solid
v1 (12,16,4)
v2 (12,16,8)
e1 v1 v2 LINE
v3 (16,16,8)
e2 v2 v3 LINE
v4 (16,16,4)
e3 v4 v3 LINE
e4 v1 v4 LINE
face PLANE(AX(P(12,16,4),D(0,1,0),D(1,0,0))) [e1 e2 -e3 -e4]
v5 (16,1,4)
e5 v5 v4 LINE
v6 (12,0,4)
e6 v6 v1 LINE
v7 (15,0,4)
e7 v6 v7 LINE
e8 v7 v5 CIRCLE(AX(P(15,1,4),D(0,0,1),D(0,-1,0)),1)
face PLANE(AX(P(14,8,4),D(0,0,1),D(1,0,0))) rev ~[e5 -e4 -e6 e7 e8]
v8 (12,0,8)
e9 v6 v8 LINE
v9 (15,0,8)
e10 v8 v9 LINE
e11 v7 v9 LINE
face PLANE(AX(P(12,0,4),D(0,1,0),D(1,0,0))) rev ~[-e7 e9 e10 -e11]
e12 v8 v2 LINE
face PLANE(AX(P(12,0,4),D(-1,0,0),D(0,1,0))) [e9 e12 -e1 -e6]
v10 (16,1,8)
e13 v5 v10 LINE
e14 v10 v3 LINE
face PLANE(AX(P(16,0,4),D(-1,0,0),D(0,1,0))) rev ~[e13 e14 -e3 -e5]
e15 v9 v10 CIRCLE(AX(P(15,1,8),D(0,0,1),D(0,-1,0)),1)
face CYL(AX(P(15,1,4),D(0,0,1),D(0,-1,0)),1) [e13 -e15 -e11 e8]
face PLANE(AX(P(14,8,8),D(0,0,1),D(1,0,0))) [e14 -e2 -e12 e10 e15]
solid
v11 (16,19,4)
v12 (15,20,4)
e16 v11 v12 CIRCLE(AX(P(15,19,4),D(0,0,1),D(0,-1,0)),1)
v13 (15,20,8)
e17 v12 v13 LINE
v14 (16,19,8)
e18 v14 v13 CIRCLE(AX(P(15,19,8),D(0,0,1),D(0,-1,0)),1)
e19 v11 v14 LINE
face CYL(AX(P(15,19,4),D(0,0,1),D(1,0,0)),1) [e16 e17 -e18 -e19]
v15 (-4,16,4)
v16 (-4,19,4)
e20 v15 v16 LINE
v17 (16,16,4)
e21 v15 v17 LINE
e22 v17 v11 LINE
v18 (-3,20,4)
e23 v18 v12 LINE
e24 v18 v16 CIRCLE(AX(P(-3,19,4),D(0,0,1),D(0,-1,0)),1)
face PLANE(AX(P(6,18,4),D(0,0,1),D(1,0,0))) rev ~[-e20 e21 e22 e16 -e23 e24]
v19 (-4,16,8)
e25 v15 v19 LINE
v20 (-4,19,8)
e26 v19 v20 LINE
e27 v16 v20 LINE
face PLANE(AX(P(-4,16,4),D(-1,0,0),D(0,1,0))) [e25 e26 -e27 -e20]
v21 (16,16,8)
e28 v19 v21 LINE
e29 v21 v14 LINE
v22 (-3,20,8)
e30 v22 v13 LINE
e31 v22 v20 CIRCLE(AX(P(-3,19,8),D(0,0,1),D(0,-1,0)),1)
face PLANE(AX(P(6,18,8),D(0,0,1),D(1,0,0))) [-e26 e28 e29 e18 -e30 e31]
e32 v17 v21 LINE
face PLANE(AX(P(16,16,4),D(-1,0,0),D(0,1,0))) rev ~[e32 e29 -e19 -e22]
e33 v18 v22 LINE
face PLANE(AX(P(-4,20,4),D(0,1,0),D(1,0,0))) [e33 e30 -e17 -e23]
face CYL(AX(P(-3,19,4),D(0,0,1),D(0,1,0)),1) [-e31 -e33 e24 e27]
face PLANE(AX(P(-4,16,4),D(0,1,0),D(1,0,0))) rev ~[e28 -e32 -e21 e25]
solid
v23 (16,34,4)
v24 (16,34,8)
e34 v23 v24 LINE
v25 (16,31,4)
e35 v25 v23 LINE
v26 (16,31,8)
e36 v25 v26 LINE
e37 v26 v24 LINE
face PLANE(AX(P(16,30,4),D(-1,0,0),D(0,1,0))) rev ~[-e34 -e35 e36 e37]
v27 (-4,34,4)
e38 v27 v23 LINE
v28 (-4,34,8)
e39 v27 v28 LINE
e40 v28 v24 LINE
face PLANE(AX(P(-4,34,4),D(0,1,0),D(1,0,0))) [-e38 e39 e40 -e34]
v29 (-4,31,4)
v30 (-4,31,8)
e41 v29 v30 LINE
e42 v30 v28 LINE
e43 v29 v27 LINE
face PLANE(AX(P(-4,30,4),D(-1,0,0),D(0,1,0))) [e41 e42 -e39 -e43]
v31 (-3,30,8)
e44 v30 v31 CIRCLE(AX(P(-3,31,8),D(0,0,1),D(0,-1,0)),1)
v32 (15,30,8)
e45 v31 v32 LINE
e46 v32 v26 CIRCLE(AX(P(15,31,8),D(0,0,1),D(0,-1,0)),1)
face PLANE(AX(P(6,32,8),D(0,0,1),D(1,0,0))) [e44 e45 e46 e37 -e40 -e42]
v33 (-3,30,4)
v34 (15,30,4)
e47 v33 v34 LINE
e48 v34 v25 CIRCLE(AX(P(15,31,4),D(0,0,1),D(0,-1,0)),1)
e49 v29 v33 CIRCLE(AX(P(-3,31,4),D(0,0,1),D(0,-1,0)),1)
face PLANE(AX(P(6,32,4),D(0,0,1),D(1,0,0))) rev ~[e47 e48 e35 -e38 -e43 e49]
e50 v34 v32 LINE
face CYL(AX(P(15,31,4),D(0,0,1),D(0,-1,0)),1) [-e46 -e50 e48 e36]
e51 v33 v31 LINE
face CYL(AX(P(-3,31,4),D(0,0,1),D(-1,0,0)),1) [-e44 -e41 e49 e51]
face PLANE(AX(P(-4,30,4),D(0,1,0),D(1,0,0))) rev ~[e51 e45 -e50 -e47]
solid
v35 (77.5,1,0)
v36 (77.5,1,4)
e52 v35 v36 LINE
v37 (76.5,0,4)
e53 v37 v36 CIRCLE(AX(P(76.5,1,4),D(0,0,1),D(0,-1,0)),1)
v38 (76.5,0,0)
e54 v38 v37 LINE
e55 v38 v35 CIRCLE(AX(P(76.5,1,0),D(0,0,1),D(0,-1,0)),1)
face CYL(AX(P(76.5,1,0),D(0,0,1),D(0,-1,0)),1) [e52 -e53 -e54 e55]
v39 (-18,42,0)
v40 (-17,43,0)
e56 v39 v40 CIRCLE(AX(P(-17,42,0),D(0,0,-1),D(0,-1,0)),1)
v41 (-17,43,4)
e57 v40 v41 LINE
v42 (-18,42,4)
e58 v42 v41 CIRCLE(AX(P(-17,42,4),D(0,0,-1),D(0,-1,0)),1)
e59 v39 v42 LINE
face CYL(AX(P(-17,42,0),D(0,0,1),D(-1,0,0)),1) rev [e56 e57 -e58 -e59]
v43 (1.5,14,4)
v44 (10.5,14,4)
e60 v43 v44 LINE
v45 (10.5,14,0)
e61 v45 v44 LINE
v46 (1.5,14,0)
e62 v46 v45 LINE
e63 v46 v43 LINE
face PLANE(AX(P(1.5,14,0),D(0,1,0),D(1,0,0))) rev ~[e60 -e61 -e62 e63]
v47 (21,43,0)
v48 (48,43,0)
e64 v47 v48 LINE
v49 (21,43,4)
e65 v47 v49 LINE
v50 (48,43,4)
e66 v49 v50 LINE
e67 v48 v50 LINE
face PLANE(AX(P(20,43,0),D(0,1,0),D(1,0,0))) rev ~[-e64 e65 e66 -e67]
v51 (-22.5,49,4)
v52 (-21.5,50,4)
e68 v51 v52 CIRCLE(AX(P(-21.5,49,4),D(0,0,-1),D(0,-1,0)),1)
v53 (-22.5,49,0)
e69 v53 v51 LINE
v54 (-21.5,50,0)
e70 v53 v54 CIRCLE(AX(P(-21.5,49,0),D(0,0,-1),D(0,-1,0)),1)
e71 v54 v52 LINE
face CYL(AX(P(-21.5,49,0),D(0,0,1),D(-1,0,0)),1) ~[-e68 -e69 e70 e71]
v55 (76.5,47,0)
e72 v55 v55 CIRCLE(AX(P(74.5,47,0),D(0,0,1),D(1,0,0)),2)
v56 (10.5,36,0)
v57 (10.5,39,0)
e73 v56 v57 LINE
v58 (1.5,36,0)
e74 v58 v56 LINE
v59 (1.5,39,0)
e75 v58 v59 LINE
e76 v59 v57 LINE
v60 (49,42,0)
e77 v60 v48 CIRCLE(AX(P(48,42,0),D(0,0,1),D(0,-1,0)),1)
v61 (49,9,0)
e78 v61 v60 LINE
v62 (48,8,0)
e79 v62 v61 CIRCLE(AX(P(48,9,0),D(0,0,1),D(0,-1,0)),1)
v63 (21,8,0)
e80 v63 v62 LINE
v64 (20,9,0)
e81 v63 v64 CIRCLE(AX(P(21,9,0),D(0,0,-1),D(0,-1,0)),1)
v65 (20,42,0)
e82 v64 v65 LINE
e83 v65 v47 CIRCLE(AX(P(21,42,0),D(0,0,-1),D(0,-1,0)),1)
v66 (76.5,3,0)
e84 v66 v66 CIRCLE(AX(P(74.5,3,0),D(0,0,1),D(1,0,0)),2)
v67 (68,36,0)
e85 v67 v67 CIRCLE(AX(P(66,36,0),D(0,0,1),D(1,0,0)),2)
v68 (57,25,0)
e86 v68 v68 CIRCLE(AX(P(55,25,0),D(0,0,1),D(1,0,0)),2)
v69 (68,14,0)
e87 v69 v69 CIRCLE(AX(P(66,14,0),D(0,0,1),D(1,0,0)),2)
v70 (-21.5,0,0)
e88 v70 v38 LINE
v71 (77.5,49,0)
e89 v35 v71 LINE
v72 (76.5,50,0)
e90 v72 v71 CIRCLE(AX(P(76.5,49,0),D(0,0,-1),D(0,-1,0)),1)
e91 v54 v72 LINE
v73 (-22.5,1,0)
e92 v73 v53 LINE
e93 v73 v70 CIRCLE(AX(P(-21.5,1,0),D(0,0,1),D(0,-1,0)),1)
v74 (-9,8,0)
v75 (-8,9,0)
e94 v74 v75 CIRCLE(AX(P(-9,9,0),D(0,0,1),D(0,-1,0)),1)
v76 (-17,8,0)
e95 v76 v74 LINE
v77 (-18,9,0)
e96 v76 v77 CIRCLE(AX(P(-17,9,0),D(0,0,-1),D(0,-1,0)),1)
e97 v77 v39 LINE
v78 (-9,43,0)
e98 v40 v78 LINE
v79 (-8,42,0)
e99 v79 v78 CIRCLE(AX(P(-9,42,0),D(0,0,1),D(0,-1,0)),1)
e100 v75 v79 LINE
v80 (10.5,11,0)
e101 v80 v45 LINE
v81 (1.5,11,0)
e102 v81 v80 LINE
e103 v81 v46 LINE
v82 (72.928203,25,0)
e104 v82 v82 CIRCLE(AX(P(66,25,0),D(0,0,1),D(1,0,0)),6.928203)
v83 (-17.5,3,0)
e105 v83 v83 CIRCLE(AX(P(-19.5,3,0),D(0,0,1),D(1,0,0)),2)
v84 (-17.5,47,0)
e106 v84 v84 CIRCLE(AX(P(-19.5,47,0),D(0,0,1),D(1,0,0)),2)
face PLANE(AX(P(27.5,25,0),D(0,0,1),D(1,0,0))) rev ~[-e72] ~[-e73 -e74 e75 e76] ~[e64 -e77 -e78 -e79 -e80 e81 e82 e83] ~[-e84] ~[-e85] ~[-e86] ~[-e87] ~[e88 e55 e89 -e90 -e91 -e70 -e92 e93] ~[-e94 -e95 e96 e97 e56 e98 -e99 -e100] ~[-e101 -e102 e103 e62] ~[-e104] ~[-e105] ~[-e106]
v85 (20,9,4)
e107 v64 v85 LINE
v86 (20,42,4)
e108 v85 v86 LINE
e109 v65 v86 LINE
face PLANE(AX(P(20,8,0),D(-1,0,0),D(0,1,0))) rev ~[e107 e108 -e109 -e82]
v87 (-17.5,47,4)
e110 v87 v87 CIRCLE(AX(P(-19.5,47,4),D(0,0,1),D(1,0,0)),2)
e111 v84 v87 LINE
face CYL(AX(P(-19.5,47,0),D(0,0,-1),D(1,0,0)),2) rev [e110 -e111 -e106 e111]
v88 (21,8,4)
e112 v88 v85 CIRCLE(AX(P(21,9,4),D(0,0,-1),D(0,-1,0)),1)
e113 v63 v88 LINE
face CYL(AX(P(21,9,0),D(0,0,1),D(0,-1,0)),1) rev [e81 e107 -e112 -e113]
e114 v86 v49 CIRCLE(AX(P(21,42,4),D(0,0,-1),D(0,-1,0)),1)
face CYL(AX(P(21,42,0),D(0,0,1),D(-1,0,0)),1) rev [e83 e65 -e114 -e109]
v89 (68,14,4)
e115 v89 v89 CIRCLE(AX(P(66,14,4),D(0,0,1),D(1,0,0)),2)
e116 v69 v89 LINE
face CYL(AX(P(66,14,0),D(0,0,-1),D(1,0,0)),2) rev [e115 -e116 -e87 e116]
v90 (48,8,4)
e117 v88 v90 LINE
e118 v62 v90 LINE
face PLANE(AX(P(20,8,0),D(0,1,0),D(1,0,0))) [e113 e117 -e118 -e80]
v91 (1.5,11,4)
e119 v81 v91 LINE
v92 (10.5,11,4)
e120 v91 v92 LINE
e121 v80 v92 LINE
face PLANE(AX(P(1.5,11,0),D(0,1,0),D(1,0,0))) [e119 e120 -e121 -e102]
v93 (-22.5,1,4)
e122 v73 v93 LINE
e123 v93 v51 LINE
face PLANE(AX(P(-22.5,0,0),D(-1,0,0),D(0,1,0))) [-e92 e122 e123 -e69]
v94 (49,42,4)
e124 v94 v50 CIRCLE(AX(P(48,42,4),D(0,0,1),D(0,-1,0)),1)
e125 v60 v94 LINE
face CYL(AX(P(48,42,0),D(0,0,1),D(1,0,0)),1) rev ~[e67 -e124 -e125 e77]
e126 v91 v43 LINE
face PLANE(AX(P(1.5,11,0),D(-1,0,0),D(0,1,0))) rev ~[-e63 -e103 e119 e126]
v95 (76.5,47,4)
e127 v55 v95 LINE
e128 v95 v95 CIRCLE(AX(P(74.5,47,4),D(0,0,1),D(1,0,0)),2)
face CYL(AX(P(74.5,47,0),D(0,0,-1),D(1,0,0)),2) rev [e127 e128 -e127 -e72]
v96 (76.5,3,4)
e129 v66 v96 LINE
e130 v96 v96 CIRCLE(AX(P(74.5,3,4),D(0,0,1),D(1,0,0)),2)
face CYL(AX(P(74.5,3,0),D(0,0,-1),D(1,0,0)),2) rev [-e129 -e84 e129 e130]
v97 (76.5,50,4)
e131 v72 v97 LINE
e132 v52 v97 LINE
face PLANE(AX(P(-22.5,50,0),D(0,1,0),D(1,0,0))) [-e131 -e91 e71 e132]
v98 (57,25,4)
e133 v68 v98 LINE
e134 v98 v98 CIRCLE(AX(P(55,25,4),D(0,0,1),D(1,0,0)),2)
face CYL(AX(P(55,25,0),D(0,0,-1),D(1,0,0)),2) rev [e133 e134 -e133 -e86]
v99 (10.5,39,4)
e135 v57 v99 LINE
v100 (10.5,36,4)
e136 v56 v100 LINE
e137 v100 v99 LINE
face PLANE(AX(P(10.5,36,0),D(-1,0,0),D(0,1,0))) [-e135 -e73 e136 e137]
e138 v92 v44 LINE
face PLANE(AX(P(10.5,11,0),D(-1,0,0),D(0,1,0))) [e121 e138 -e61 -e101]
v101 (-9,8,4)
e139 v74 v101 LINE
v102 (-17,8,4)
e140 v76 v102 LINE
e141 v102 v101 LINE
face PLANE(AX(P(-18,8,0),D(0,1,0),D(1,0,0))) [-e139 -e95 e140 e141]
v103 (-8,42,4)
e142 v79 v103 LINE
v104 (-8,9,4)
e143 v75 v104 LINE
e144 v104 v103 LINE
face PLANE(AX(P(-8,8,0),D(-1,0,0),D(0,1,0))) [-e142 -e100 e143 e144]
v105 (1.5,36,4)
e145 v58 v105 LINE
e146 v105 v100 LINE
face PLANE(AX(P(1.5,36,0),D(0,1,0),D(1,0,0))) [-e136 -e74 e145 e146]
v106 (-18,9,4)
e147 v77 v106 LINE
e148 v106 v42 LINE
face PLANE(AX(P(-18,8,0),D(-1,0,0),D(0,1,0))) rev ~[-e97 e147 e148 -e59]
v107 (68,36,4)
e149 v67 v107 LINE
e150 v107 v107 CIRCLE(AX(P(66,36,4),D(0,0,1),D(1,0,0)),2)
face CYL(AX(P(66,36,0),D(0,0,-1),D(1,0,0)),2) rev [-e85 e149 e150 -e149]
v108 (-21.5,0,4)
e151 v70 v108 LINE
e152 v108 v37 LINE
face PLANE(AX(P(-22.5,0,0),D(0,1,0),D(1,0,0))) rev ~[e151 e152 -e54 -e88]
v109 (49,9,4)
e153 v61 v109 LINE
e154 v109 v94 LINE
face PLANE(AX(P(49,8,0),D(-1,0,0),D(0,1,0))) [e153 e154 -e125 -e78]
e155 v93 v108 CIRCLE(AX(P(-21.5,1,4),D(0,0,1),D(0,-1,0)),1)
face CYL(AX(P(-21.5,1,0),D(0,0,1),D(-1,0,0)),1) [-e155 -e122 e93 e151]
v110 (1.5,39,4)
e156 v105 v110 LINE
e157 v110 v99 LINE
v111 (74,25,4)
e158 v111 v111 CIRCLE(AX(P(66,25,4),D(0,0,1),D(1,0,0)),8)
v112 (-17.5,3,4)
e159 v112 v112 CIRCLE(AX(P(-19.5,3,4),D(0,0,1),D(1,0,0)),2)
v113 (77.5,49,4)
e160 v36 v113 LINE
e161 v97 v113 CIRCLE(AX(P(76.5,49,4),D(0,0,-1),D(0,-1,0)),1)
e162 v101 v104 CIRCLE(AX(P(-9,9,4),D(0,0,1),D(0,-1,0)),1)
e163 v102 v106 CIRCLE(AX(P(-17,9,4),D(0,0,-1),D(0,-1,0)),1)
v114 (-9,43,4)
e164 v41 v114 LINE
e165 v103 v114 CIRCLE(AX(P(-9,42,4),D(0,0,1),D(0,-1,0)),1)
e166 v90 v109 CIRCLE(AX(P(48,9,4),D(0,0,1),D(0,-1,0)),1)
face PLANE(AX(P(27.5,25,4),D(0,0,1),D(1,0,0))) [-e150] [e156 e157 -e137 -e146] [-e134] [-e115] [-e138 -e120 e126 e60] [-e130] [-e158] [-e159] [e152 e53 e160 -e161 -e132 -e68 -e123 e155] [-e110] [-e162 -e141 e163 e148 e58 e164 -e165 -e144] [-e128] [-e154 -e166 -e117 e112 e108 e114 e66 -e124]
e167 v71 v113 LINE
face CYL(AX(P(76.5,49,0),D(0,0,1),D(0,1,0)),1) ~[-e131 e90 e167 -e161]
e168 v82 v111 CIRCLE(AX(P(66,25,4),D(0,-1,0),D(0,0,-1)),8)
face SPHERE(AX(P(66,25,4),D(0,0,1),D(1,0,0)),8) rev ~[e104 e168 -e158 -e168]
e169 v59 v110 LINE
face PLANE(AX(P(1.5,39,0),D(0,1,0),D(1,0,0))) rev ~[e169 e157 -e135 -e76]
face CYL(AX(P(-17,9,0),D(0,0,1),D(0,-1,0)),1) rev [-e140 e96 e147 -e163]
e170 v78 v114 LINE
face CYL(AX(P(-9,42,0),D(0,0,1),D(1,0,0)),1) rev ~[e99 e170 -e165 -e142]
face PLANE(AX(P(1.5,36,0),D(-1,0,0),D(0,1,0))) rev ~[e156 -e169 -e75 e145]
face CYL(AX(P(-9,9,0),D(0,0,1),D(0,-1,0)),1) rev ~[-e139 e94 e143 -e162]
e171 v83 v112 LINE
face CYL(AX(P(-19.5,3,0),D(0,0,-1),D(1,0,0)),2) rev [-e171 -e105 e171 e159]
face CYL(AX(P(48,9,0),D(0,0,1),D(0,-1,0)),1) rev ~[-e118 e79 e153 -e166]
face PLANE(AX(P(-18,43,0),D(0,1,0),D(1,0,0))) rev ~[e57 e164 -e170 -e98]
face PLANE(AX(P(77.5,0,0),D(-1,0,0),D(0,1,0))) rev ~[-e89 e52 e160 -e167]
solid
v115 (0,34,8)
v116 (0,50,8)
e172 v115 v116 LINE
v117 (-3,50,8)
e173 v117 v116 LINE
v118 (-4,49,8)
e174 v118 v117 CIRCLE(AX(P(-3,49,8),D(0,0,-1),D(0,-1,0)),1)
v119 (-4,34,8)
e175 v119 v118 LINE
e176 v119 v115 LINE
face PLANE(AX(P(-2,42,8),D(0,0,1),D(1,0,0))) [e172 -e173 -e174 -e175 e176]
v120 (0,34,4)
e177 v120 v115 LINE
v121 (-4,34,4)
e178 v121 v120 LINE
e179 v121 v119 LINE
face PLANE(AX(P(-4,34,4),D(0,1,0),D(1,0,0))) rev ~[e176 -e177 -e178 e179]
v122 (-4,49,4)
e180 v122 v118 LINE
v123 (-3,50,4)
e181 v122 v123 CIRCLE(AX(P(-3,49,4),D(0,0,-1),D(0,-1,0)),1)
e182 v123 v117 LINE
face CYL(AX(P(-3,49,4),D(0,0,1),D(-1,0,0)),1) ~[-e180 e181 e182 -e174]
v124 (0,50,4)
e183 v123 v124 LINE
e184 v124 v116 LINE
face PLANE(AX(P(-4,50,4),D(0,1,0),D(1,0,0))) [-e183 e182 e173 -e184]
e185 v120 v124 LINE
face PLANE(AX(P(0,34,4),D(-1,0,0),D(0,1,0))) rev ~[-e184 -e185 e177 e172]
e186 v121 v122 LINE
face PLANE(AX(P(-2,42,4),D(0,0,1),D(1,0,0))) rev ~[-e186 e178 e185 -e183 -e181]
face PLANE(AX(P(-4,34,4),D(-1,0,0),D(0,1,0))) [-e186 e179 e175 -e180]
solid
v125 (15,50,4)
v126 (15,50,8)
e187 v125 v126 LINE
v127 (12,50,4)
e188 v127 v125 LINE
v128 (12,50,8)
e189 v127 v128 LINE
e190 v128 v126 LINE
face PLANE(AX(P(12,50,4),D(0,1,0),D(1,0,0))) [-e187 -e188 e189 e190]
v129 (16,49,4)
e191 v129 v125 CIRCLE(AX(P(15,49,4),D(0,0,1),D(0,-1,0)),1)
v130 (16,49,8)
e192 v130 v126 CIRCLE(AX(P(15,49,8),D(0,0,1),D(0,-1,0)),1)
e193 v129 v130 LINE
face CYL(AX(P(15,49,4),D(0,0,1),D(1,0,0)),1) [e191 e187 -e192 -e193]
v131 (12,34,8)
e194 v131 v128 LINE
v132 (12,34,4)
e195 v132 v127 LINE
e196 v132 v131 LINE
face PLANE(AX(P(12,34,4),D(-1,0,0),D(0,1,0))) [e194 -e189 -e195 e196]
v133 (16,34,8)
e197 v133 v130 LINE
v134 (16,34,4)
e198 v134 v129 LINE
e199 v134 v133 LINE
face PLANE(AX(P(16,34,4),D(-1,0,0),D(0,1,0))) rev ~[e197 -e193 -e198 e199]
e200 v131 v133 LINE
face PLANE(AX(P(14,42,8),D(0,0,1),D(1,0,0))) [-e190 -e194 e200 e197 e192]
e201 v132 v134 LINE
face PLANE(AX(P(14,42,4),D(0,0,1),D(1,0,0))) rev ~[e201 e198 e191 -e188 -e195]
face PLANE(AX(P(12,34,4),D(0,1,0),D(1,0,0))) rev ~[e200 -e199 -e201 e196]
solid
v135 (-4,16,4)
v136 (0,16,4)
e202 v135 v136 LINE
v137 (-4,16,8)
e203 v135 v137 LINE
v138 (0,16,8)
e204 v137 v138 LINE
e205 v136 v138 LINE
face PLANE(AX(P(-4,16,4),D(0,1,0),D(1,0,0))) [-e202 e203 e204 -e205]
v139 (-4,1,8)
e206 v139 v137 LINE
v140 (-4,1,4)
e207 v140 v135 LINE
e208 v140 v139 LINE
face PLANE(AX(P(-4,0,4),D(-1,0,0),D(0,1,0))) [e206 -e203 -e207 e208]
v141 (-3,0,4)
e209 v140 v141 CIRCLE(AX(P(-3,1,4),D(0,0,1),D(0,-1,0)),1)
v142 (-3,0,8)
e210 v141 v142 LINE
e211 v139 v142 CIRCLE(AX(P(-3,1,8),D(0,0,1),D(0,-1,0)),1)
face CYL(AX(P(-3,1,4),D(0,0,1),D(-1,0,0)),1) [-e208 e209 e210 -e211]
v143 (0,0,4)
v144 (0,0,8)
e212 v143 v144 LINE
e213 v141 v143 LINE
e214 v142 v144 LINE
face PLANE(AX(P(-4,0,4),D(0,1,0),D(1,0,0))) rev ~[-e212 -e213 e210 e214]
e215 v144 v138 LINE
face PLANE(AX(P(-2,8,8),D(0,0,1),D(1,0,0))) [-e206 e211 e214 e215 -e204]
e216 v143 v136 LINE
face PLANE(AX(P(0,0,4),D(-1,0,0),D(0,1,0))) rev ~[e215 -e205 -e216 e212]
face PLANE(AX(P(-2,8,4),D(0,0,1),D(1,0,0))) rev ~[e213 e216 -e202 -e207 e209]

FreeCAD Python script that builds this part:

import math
import FreeCAD as App
import Part
import Sketcher

V = App.Vector
Q = App.Units.Quantity


def edges_at(feature, points):
    """Names of the edges that pass closest to the given points."""
    edges = feature.Shape.Edges
    near = lambda p: min(range(len(edges)), key=lambda i: edges[i].distToShape(Part.Vertex(*p))[0])
    return sorted({f"Edge{near(p) + 1}" for p in points})


def add_polygon(sketch, points):
    """Adds a closed chain of lines whose ends are joined by coincident constraints."""
    first, n = sketch.GeometryCount, len(points)
    for a, b in zip(points, points[1:] + points[:1]):
        sketch.addGeometry(Part.LineSegment(App.Vector(*a, 0), App.Vector(*b, 0)), False)
    for i in range(n):
        sketch.addConstraint(Sketcher.Constraint("Coincident", first + i, 2, first + (i + 1) % n, 1))

doc = App.newDocument("Part")
params = doc.addObject("Spreadsheet::Sheet", "Params")
for row, (alias, value) in enumerate([
    ("sketch1_radius", "8 mm"),
    ("revolution_angle", "360 deg"),
    ("sketch2_diameter", "4 mm"),
    ("pad1_length", "4 mm"),
    ("sketch3_width", "29 mm"),
    ("sketch3_height", "35 mm"),
    ("pad2_length", "4 mm"),
    ("sketch4_diameter", "4 mm"),
    ("pad3_length", "4 mm"),
    ("sketch5_diameter", "4 mm"),
    ("pad4_length", "4 mm"),
    ("sketch6_width", "10 mm"),
    ("sketch6_height", "35 mm"),
    ("pad5_length", "4 mm"),
    ("sketch7_width", "9 mm"),
    ("sketch7_height", "3 mm"),
    ("pad6_length", "4 mm"),
    ("sketch8_width", "9 mm"),
    ("sketch8_height", "3 mm"),
    ("pad7_length", "4 mm"),
    ("sketch9_diameter", "4 mm"),
    ("pad8_length", "4 mm"),
    ("sketch10_diameter", "4 mm"),
    ("pad9_length", "4 mm"),
    ("sketch11_diameter", "4 mm"),
    ("pad10_length", "4 mm"),
    ("sketch12_diameter", "4 mm"),
    ("pad11_length", "4 mm"),
    ("sketch13_width", "100 mm"),
    ("sketch13_height", "50 mm"),
    ("pad12_length", "4 mm"),
    ("fillet_radius", "1 mm"),
    ("fillet2_radius", "1 mm"),
    ("sketch14_width", "4 mm"),
    ("sketch14_height", "16 mm"),
    ("pad13_length", "4 mm"),
    ("fillet3_radius", "1 mm"),
    ("sketch15_width", "4 mm"),
    ("sketch15_height", "16 mm"),
    ("pad14_length", "4 mm"),
    ("fillet4_radius", "1 mm"),
    ("sketch16_width", "20 mm"),
    ("sketch16_height", "4 mm"),
    ("pad15_length", "4 mm"),
    ("fillet5_radius", "1 mm"),
    ("sketch17_width", "4 mm"),
    ("sketch17_height", "16 mm"),
    ("pad16_length", "4 mm"),
    ("fillet6_radius", "1 mm"),
    ("sketch18_width", "20 mm"),
    ("sketch18_height", "4 mm"),
    ("pad17_length", "4 mm"),
    ("fillet7_radius", "1 mm"),
    ("fillet8_radius", "1 mm"),
    ("sketch19_width", "4 mm"),
    ("sketch19_height", "16 mm"),
    ("pad18_length", "4 mm"),
    ("fillet9_radius", "1 mm"),
], start=1):
    params.set(f"A{row}", alias)
    params.set(f"B{row}", "=" + value)
    params.setAlias(f"B{row}", alias)

body = doc.addObject("PartDesign::Body", "Body")

# Sketch on XZ plane
sketch1 = body.newObject("Sketcher::SketchObject", "Sketch")
sketch1.AttachmentSupport = (doc.getObject("XZ_Plane"), [""])
sketch1.MapMode = "FlatFace"
sketch1.AttachmentOffset = App.Placement(V(0, 0, -25), App.Rotation())
sketch1.addGeometry([
    Part.ArcOfCircle(Part.Circle(V(66, 4, 0), V(0, 0, 1), 8), math.radians(-90), math.radians(90)),
    Part.LineSegment(V(66, 12, 0), V(66, -4, 0)),
], False)
sketch1.addGeometry(Part.LineSegment(V(66, -4, 0), V(66, 12, 0)), True)  # axis
sketch1.addConstraint([
    Sketcher.Constraint("Coincident", 0, 1, 1, 2),
    Sketcher.Constraint("Coincident", 1, 1, 0, 2),
    Sketcher.Constraint("Vertical", 1),
    Sketcher.Constraint("Vertical", 2),
    Sketcher.Constraint("Coincident", 2, 1, 0, 1),
    Sketcher.Constraint("Equal", 1, 2),
    Sketcher.Constraint("Radius", 0, Q("8 mm")),
    Sketcher.Constraint("DistanceX", -1, 1, 0, 3, Q("66 mm")),
    Sketcher.Constraint("DistanceY", -1, 1, 0, 3, Q("4 mm")),
    Sketcher.Constraint("DistanceX", -1, 1, 0, 1, Q("66 mm")),
])
sketch1.setExpression("Constraints[6]", "Params.sketch1_radius")
revolution = body.newObject("PartDesign::Revolution", "Revolution")
revolution.Profile = sketch1
revolution.ReferenceAxis = (sketch1, ["Axis0"])
revolution.setExpression("Angle", "Params.revolution_angle")
body2 = doc.addObject("PartDesign::Body", "Body001")

# Sketch on XY plane
sketch2 = body2.newObject("Sketcher::SketchObject", "Sketch001")
sketch2.AttachmentSupport = (doc.getObject("XY_Plane001"), [""])
sketch2.MapMode = "FlatFace"
sketch2.addGeometry(Part.Circle(V(66, 36, 0), V(0, 0, 1), 2), False)
sketch2.addConstraint([
    Sketcher.Constraint("Diameter", 0, Q("4 mm")),
    Sketcher.Constraint("DistanceX", -1, 1, 0, 3, Q("66 mm")),
    Sketcher.Constraint("DistanceY", -1, 1, 0, 3, Q("36 mm")),
])
sketch2.setExpression("Constraints[0]", "Params.sketch2_diameter")
pad1 = body2.newObject("PartDesign::Pad", "Pad")
pad1.Profile = sketch2
pad1.setExpression("Length", "Params.pad1_length")
body3 = doc.addObject("PartDesign::Body", "Body002")

# Sketch on XY plane
sketch3 = body3.newObject("Sketcher::SketchObject", "Sketch002")
sketch3.AttachmentSupport = (doc.getObject("XY_Plane002"), [""])
sketch3.MapMode = "FlatFace"
add_polygon(sketch3, [(20, 43), (20, 8), (49, 8), (49, 43)])  # lines 0-3
sketch3.addConstraint([
    Sketcher.Constraint("Vertical", 0),
    Sketcher.Constraint("Horizontal", 1),
    Sketcher.Constraint("Vertical", 2),
    Sketcher.Constraint("Horizontal", 3),
    Sketcher.Constraint("DistanceX", 1, 1, 1, 2, Q("29 mm")),
    Sketcher.Constraint("DistanceY", 0, 2, 0, 1, Q("35 mm")),
    Sketcher.Constraint("DistanceX", -1, 1, 0, 2, Q("20 mm")),
    Sketcher.Constraint("DistanceY", -1, 1, 0, 2, Q("8 mm")),
])
sketch3.setExpression("Constraints[8]", "Params.sketch3_width")
sketch3.setExpression("Constraints[9]", "Params.sketch3_height")
pad2 = body3.newObject("PartDesign::Pad", "Pad001")
pad2.Profile = sketch3
pad2.setExpression("Length", "Params.pad2_length")
body4 = doc.addObject("PartDesign::Body", "Body003")

# Sketch on XY plane
sketch4 = body4.newObject("Sketcher::SketchObject", "Sketch003")
sketch4.AttachmentSupport = (doc.getObject("XY_Plane003"), [""])
sketch4.MapMode = "FlatFace"
sketch4.addGeometry(Part.Circle(V(55, 25, 0), V(0, 0, 1), 2), False)
sketch4.addConstraint([
    Sketcher.Constraint("Diameter", 0, Q("4 mm")),
    Sketcher.Constraint("DistanceX", -1, 1, 0, 3, Q("55 mm")),
    Sketcher.Constraint("DistanceY", -1, 1, 0, 3, Q("25 mm")),
])
sketch4.setExpression("Constraints[0]", "Params.sketch4_diameter")
pad3 = body4.newObject("PartDesign::Pad", "Pad002")
pad3.Profile = sketch4
pad3.setExpression("Length", "Params.pad3_length")
body5 = doc.addObject("PartDesign::Body", "Body004")

# Sketch on XY plane
sketch5 = body5.newObject("Sketcher::SketchObject", "Sketch004")
sketch5.AttachmentSupport = (doc.getObject("XY_Plane004"), [""])
sketch5.MapMode = "FlatFace"
sketch5.addGeometry(Part.Circle(V(66, 14, 0), V(0, 0, 1), 2), False)
sketch5.addConstraint([
    Sketcher.Constraint("Diameter", 0, Q("4 mm")),
    Sketcher.Constraint("DistanceX", -1, 1, 0, 3, Q("66 mm")),
    Sketcher.Constraint("DistanceY", -1, 1, 0, 3, Q("14 mm")),
])
sketch5.setExpression("Constraints[0]", "Params.sketch5_diameter")
pad4 = body5.newObject("PartDesign::Pad", "Pad003")
pad4.Profile = sketch5
pad4.setExpression("Length", "Params.pad4_length")
body6 = doc.addObject("PartDesign::Body", "Body005")

# Sketch on XY plane
sketch6 = body6.newObject("Sketcher::SketchObject", "Sketch005")
sketch6.AttachmentSupport = (doc.getObject("XY_Plane005"), [""])
sketch6.MapMode = "FlatFace"
add_polygon(sketch6, [(-18, 43), (-18, 8), (-8, 8), (-8, 43)])  # lines 0-3
sketch6.addConstraint([
    Sketcher.Constraint("Vertical", 0),
    Sketcher.Constraint("Horizontal", 1),
    Sketcher.Constraint("Vertical", 2),
    Sketcher.Constraint("Horizontal", 3),
    Sketcher.Constraint("DistanceX", 1, 1, 1, 2, Q("10 mm")),
    Sketcher.Constraint("DistanceY", 0, 2, 0, 1, Q("35 mm")),
    Sketcher.Constraint("DistanceX", 0, 2, -1, 1, Q("18 mm")),
    Sketcher.Constraint("DistanceY", -1, 1, 0, 2, Q("8 mm")),
])
sketch6.setExpression("Constraints[8]", "Params.sketch6_width")
sketch6.setExpression("Constraints[9]", "Params.sketch6_height")
pad5 = body6.newObject("PartDesign::Pad", "Pad004")
pad5.Profile = sketch6
pad5.setExpression("Length", "Params.pad5_length")
body7 = doc.addObject("PartDesign::Body", "Body006")

# Sketch on XY plane
sketch7 = body7.newObject("Sketcher::SketchObject", "Sketch006")
sketch7.AttachmentSupport = (doc.getObject("XY_Plane006"), [""])
sketch7.MapMode = "FlatFace"
add_polygon(sketch7, [(1.5, 39), (1.5, 36), (10.5, 36), (10.5, 39)])  # lines 0-3
sketch7.addConstraint([
    Sketcher.Constraint("Vertical", 0),
    Sketcher.Constraint("Horizontal", 1),
    Sketcher.Constraint("Vertical", 2),
    Sketcher.Constraint("Horizontal", 3),
    Sketcher.Constraint("DistanceX", 1, 1, 1, 2, Q("9 mm")),
    Sketcher.Constraint("DistanceY", 0, 2, 0, 1, Q("3 mm")),
    Sketcher.Constraint("DistanceY", -1, 1, 0, 2, Q("36 mm")),
    Sketcher.Constraint("DistanceX", -1, 1, 0, 2, Q("1.5 mm")),
])
sketch7.setExpression("Constraints[8]", "Params.sketch7_width")
sketch7.setExpression("Constraints[9]", "Params.sketch7_height")
pad6 = body7.newObject("PartDesign::Pad", "Pad005")
pad6.Profile = sketch7
pad6.setExpression("Length", "Params.pad6_length")
body8 = doc.addObject("PartDesign::Body", "Body007")

# Sketch on XY plane
sketch8 = body8.newObject("Sketcher::SketchObject", "Sketch007")
sketch8.AttachmentSupport = (doc.getObject("XY_Plane007"), [""])
sketch8.MapMode = "FlatFace"
add_polygon(sketch8, [(1.5, 14), (1.5, 11), (10.5, 11), (10.5, 14)])  # lines 0-3
sketch8.addConstraint([
    Sketcher.Constraint("Vertical", 0),
    Sketcher.Constraint("Horizontal", 1),
    Sketcher.Constraint("Vertical", 2),
    Sketcher.Constraint("Horizontal", 3),
    Sketcher.Constraint("DistanceX", 1, 1, 1, 2, Q("9 mm")),
    Sketcher.Constraint("DistanceY", 0, 2, 0, 1, Q("3 mm")),
    Sketcher.Constraint("DistanceY", -1, 1, 0, 2, Q("11 mm")),
    Sketcher.Constraint("DistanceX", -1, 1, 0, 2, Q("1.5 mm")),
])
sketch8.setExpression("Constraints[8]", "Params.sketch8_width")
sketch8.setExpression("Constraints[9]", "Params.sketch8_height")
pad7 = body8.newObject("PartDesign::Pad", "Pad006")
pad7.Profile = sketch8
pad7.setExpression("Length", "Params.pad7_length")
body9 = doc.addObject("PartDesign::Body", "Body008")

# Sketch on XY plane
sketch9 = body9.newObject("Sketcher::SketchObject", "Sketch008")
sketch9.AttachmentSupport = (doc.getObject("XY_Plane008"), [""])
sketch9.MapMode = "FlatFace"
sketch9.addGeometry(Part.Circle(V(3, 47, 0), V(0, 0, 1), 2), False)
sketch9.addConstraint([
    Sketcher.Constraint("Diameter", 0, Q("4 mm")),
    Sketcher.Constraint("DistanceX", -1, 1, 0, 3, Q("3 mm")),
    Sketcher.Constraint("DistanceY", -1, 1, 0, 3, Q("47 mm")),
])
sketch9.setExpression("Constraints[0]", "Params.sketch9_diameter")
pad8 = body9.newObject("PartDesign::Pad", "Pad007")
pad8.Profile = sketch9
pad8.setExpression("Length", "Params.pad8_length")
body10 = doc.addObject("PartDesign::Body", "Body009")

# Sketch on XY plane
sketch10 = body10.newObject("Sketcher::SketchObject", "Sketch009")
sketch10.AttachmentSupport = (doc.getObject("XY_Plane009"), [""])
sketch10.MapMode = "FlatFace"
sketch10.addGeometry(Part.Circle(V(97, 3, 0), V(0, 0, 1), 2), False)
sketch10.addConstraint([
    Sketcher.Constraint("Diameter", 0, Q("4 mm")),
    Sketcher.Constraint("DistanceX", -1, 1, 0, 3, Q("97 mm")),
    Sketcher.Constraint("DistanceY", -1, 1, 0, 3, Q("3 mm")),
])
sketch10.setExpression("Constraints[0]", "Params.sketch10_diameter")
pad9 = body10.newObject("PartDesign::Pad", "Pad008")
pad9.Profile = sketch10
pad9.setExpression("Length", "Params.pad9_length")
body11 = doc.addObject("PartDesign::Body", "Body010")

# Sketch on XY plane
sketch11 = body11.newObject("Sketcher::SketchObject", "Sketch010")
sketch11.AttachmentSupport = (doc.getObject("XY_Plane010"), [""])
sketch11.MapMode = "FlatFace"
sketch11.addGeometry(Part.Circle(V(97, 47, 0), V(0, 0, 1), 2), False)
sketch11.addConstraint([
    Sketcher.Constraint("Diameter", 0, Q("4 mm")),
    Sketcher.Constraint("DistanceX", -1, 1, 0, 3, Q("97 mm")),
    Sketcher.Constraint("DistanceY", -1, 1, 0, 3, Q("47 mm")),
])
sketch11.setExpression("Constraints[0]", "Params.sketch11_diameter")
pad10 = body11.newObject("PartDesign::Pad", "Pad009")
pad10.Profile = sketch11
pad10.setExpression("Length", "Params.pad10_length")
body12 = doc.addObject("PartDesign::Body", "Body011")

# Sketch on XY plane
sketch12 = body12.newObject("Sketcher::SketchObject", "Sketch011")
sketch12.AttachmentSupport = (doc.getObject("XY_Plane011"), [""])
sketch12.MapMode = "FlatFace"
sketch12.addGeometry(Part.Circle(V(3, 3, 0), V(0, 0, 1), 2), False)
sketch12.addConstraint([
    Sketcher.Constraint("Diameter", 0, Q("4 mm")),
    Sketcher.Constraint("DistanceX", -1, 1, 0, 3, Q("3 mm")),
    Sketcher.Constraint("DistanceY", -1, 1, 0, 3, Q("3 mm")),
])
sketch12.setExpression("Constraints[0]", "Params.sketch12_diameter")
pad11 = body12.newObject("PartDesign::Pad", "Pad010")
pad11.Profile = sketch12
pad11.setExpression("Length", "Params.pad11_length")
body13 = doc.addObject("PartDesign::Body", "Body012")

# Sketch on XY plane
sketch13 = body13.newObject("Sketcher::SketchObject", "Sketch012")
sketch13.AttachmentSupport = (doc.getObject("XY_Plane012"), [""])
sketch13.MapMode = "FlatFace"
add_polygon(sketch13, [(0, 50), (0, 0), (100, 0), (100, 50)])  # lines 0-3
sketch13.addConstraint([
    Sketcher.Constraint("Vertical", 0),
    Sketcher.Constraint("Horizontal", 1),
    Sketcher.Constraint("Vertical", 2),
    Sketcher.Constraint("Horizontal", 3),
    Sketcher.Constraint("Coincident", 0, 2, -1, 1),
    Sketcher.Constraint("DistanceX", 1, 1, 1, 2, Q("100 mm")),
    Sketcher.Constraint("DistanceY", 0, 2, 0, 1, Q("50 mm")),
])
sketch13.setExpression("Constraints[9]", "Params.sketch13_width")
sketch13.setExpression("Constraints[10]", "Params.sketch13_height")
pad12 = body13.newObject("PartDesign::Pad", "Pad011")
pad12.Profile = sketch13
pad12.setExpression("Length", "Params.pad12_length")
doc.recompute()

boolean = body13.newObject("PartDesign::Boolean", "Boolean")
boolean.Type = "Cut"
boolean.addObjects([body12])
doc.recompute()

boolean2 = body13.newObject("PartDesign::Boolean", "Boolean001")
boolean2.Type = "Cut"
boolean2.addObjects([body11])
doc.recompute()

boolean3 = body13.newObject("PartDesign::Boolean", "Boolean002")
boolean3.Type = "Cut"
boolean3.addObjects([body10])
doc.recompute()

boolean4 = body13.newObject("PartDesign::Boolean", "Boolean003")
boolean4.Type = "Cut"
boolean4.addObjects([body9])
body14 = doc.addObject("PartDesign::Body", "Body013")
doc.recompute()

body13.Placement = App.Placement(V(-22.5, 0, 0), App.Rotation(V(0, 0, 1), 0))
boolean5 = body14.newObject("PartDesign::Boolean", "Boolean004")
boolean5.Type = "Fuse"
boolean5.addObjects([body13])
doc.recompute()

boolean6 = body14.newObject("PartDesign::Boolean", "Boolean005")
boolean6.Type = "Cut"
boolean6.addObjects([body8])
doc.recompute()

boolean7 = body14.newObject("PartDesign::Boolean", "Boolean006")
boolean7.Type = "Cut"
boolean7.addObjects([body7])
doc.recompute()

boolean8 = body14.newObject("PartDesign::Boolean", "Boolean007")
boolean8.Type = "Cut"
boolean8.addObjects([body6])
doc.recompute()

boolean9 = body14.newObject("PartDesign::Boolean", "Boolean008")
boolean9.Type = "Cut"
boolean9.addObjects([body5])
doc.recompute()

boolean10 = body14.newObject("PartDesign::Boolean", "Boolean009")
boolean10.Type = "Cut"
boolean10.addObjects([body4])
doc.recompute()

boolean11 = body14.newObject("PartDesign::Boolean", "Boolean010")
boolean11.Type = "Cut"
boolean11.addObjects([body3])
doc.recompute()

boolean12 = body14.newObject("PartDesign::Boolean", "Boolean011")
boolean12.Type = "Cut"
boolean12.addObjects([body2])
doc.recompute()

boolean13 = body14.newObject("PartDesign::Boolean", "Boolean012")
boolean13.Type = "Cut"
boolean13.addObjects([body])
doc.recompute()

fillet = body14.newObject("PartDesign::Fillet", "Fillet")
fillet.Base = (boolean13, edges_at(boolean13, [
    (-22.5, 0, 2),
    (-22.5, 50, 2),
    (77.5, 0, 2),
    (77.5, 50, 2),
]))
fillet.setExpression("Radius", "Params.fillet_radius")
doc.recompute()

fillet2 = body14.newObject("PartDesign::Fillet", "Fillet001")
fillet2.Base = (fillet, edges_at(fillet, [
    (-18, 8, 2),
    (-18, 43, 2),
    (-8, 43, 2),
    (-8, 8, 2),
    (20, 8, 2),
    (20, 43, 2),
    (49, 43, 2),
    (49, 8, 2),
]))
fillet2.setExpression("Radius", "Params.fillet2_radius")
body15 = doc.addObject("PartDesign::Body", "Body014")

# Sketch on XY plane
sketch14 = body15.newObject("Sketcher::SketchObject", "Sketch013")
sketch14.AttachmentSupport = (doc.getObject("XY_Plane014"), [""])
sketch14.MapMode = "FlatFace"
sketch14.AttachmentOffset = App.Placement(V(0, 0, 4), App.Rotation())
add_polygon(sketch14, [(12, 16), (12, 0), (16, 0), (16, 16)])  # lines 0-3
sketch14.addConstraint([
    Sketcher.Constraint("Vertical", 0),
    Sketcher.Constraint("Horizontal", 1),
    Sketcher.Constraint("Vertical", 2),
    Sketcher.Constraint("Horizontal", 3),
    Sketcher.Constraint("PointOnObject", 0, 2, -1),
    Sketcher.Constraint("DistanceX", 1, 1, 1, 2, Q("4 mm")),
    Sketcher.Constraint("DistanceY", 0, 2, 0, 1, Q("16 mm")),
    Sketcher.Constraint("DistanceX", -1, 1, 0, 2, Q("12 mm")),
])
sketch14.setExpression("Constraints[9]", "Params.sketch14_width")
sketch14.setExpression("Constraints[10]", "Params.sketch14_height")
pad13 = body15.newObject("PartDesign::Pad", "Pad012")
pad13.Profile = sketch14
pad13.setExpression("Length", "Params.pad13_length")
doc.recompute()

fillet3 = body15.newObject("PartDesign::Fillet", "Fillet002")
fillet3.Base = (pad13, edges_at(pad13, [(16, 0, 6)]))
fillet3.setExpression("Radius", "Params.fillet3_radius")
body16 = doc.addObject("PartDesign::Body", "Body015")

# Sketch on XY plane
sketch15 = body16.newObject("Sketcher::SketchObject", "Sketch014")
sketch15.AttachmentSupport = (doc.getObject("XY_Plane015"), [""])
sketch15.MapMode = "FlatFace"
sketch15.AttachmentOffset = App.Placement(V(0, 0, 4), App.Rotation())
add_polygon(sketch15, [(-4, 16), (-4, 0), (0, 0), (0, 16)])  # lines 0-3
sketch15.addConstraint([
    Sketcher.Constraint("Vertical", 0),
    Sketcher.Constraint("Horizontal", 1),
    Sketcher.Constraint("Vertical", 2),
    Sketcher.Constraint("Horizontal", 3),
    Sketcher.Constraint("Coincident", 1, 2, -1, 1),
    Sketcher.Constraint("DistanceX", 1, 1, 1, 2, Q("4 mm")),
    Sketcher.Constraint("DistanceY", 0, 2, 0, 1, Q("16 mm")),
])
sketch15.setExpression("Constraints[9]", "Params.sketch15_width")
sketch15.setExpression("Constraints[10]", "Params.sketch15_height")
pad14 = body16.newObject("PartDesign::Pad", "Pad013")
pad14.Profile = sketch15
pad14.setExpression("Length", "Params.pad14_length")
doc.recompute()

fillet4 = body16.newObject("PartDesign::Fillet", "Fillet003")
fillet4.Base = (pad14, edges_at(pad14, [(-4, 0, 6)]))
fillet4.setExpression("Radius", "Params.fillet4_radius")
body17 = doc.addObject("PartDesign::Body", "Body016")

# Sketch on XY plane
sketch16 = body17.newObject("Sketcher::SketchObject", "Sketch015")
sketch16.AttachmentSupport = (doc.getObject("XY_Plane016"), [""])
sketch16.MapMode = "FlatFace"
sketch16.AttachmentOffset = App.Placement(V(0, 0, 4), App.Rotation())
add_polygon(sketch16, [(-4, 34), (-4, 30), (16, 30), (16, 34)])  # lines 0-3
sketch16.addConstraint([
    Sketcher.Constraint("Vertical", 0),
    Sketcher.Constraint("Horizontal", 1),
    Sketcher.Constraint("Vertical", 2),
    Sketcher.Constraint("Horizontal", 3),
    Sketcher.Constraint("DistanceX", 1, 1, 1, 2, Q("20 mm")),
    Sketcher.Constraint("DistanceY", 0, 2, 0, 1, Q("4 mm")),
    Sketcher.Constraint("DistanceX", 0, 2, -1, 1, Q("4 mm")),
    Sketcher.Constraint("DistanceY", -1, 1, 0, 2, Q("30 mm")),
])
sketch16.setExpression("Constraints[8]", "Params.sketch16_width")
sketch16.setExpression("Constraints[9]", "Params.sketch16_height")
pad15 = body17.newObject("PartDesign::Pad", "Pad014")
pad15.Profile = sketch16
pad15.setExpression("Length", "Params.pad15_length")
doc.recompute()

fillet5 = body17.newObject("PartDesign::Fillet", "Fillet004")
fillet5.Base = (pad15, edges_at(pad15, [(-4, 30, 6), (16, 30, 6)]))
fillet5.setExpression("Radius", "Params.fillet5_radius")
body18 = doc.addObject("PartDesign::Body", "Body017")

# Sketch on XY plane
sketch17 = body18.newObject("Sketcher::SketchObject", "Sketch016")
sketch17.AttachmentSupport = (doc.getObject("XY_Plane017"), [""])
sketch17.MapMode = "FlatFace"
sketch17.AttachmentOffset = App.Placement(V(0, 0, 4), App.Rotation())
add_polygon(sketch17, [(12, 50), (12, 34), (16, 34), (16, 50)])  # lines 0-3
sketch17.addConstraint([
    Sketcher.Constraint("Vertical", 0),
    Sketcher.Constraint("Horizontal", 1),
    Sketcher.Constraint("Vertical", 2),
    Sketcher.Constraint("Horizontal", 3),
    Sketcher.Constraint("DistanceX", 1, 1, 1, 2, Q("4 mm")),
    Sketcher.Constraint("DistanceY", 0, 2, 0, 1, Q("16 mm")),
    Sketcher.Constraint("DistanceX", -1, 1, 0, 2, Q("12 mm")),
    Sketcher.Constraint("DistanceY", -1, 1, 0, 2, Q("34 mm")),
])
sketch17.setExpression("Constraints[8]", "Params.sketch17_width")
sketch17.setExpression("Constraints[9]", "Params.sketch17_height")
pad16 = body18.newObject("PartDesign::Pad", "Pad015")
pad16.Profile = sketch17
pad16.setExpression("Length", "Params.pad16_length")
doc.recompute()

fillet6 = body18.newObject("PartDesign::Fillet", "Fillet005")
fillet6.Base = (pad16, edges_at(pad16, [(16, 50, 6)]))
fillet6.setExpression("Radius", "Params.fillet6_radius")
body19 = doc.addObject("PartDesign::Body", "Body018")

# Sketch on XY plane
sketch18 = body19.newObject("Sketcher::SketchObject", "Sketch017")
sketch18.AttachmentSupport = (doc.getObject("XY_Plane018"), [""])
sketch18.MapMode = "FlatFace"
sketch18.AttachmentOffset = App.Placement(V(0, 0, 4), App.Rotation())
add_polygon(sketch18, [(-4, 20), (-4, 16), (16, 16), (16, 20)])  # lines 0-3
sketch18.addConstraint([
    Sketcher.Constraint("Vertical", 0),
    Sketcher.Constraint("Horizontal", 1),
    Sketcher.Constraint("Vertical", 2),
    Sketcher.Constraint("Horizontal", 3),
    Sketcher.Constraint("DistanceX", 1, 1, 1, 2, Q("20 mm")),
    Sketcher.Constraint("DistanceY", 0, 2, 0, 1, Q("4 mm")),
    Sketcher.Constraint("DistanceX", 0, 2, -1, 1, Q("4 mm")),
    Sketcher.Constraint("DistanceY", -1, 1, 0, 2, Q("16 mm")),
])
sketch18.setExpression("Constraints[8]", "Params.sketch18_width")
sketch18.setExpression("Constraints[9]", "Params.sketch18_height")
pad17 = body19.newObject("PartDesign::Pad", "Pad016")
pad17.Profile = sketch18
pad17.setExpression("Length", "Params.pad17_length")
doc.recompute()

fillet7 = body19.newObject("PartDesign::Fillet", "Fillet006")
fillet7.Base = (pad17, edges_at(pad17, [(16, 20, 6)]))
fillet7.setExpression("Radius", "Params.fillet7_radius")
doc.recompute()

fillet8 = body19.newObject("PartDesign::Fillet", "Fillet007")
fillet8.Base = (fillet7, edges_at(fillet7, [(-4, 20, 6)]))
fillet8.setExpression("Radius", "Params.fillet8_radius")
body20 = doc.addObject("PartDesign::Body", "Body019")

# Sketch on XY plane
sketch19 = body20.newObject("Sketcher::SketchObject", "Sketch018")
sketch19.AttachmentSupport = (doc.getObject("XY_Plane019"), [""])
sketch19.MapMode = "FlatFace"
sketch19.AttachmentOffset = App.Placement(V(0, 0, 4), App.Rotation())
add_polygon(sketch19, [(-4, 50), (-4, 34), (0, 34), (0, 50)])  # lines 0-3
sketch19.addConstraint([
    Sketcher.Constraint("Vertical", 0),
    Sketcher.Constraint("Horizontal", 1),
    Sketcher.Constraint("Vertical", 2),
    Sketcher.Constraint("Horizontal", 3),
    Sketcher.Constraint("PointOnObject", 1, 2, -2),
    Sketcher.Constraint("DistanceX", 1, 1, 1, 2, Q("4 mm")),
    Sketcher.Constraint("DistanceY", 0, 2, 0, 1, Q("16 mm")),
    Sketcher.Constraint("DistanceY", -1, 1, 0, 2, Q("34 mm")),
])
sketch19.setExpression("Constraints[9]", "Params.sketch19_width")
sketch19.setExpression("Constraints[10]", "Params.sketch19_height")
pad18 = body20.newObject("PartDesign::Pad", "Pad017")
pad18.Profile = sketch19
pad18.setExpression("Length", "Params.pad18_length")
doc.recompute()

fillet9 = body20.newObject("PartDesign::Fillet", "Fillet008")
fillet9.Base = (pad18, edges_at(pad18, [(-4, 50, 6)]))
fillet9.setExpression("Radius", "Params.fillet9_radius")

doc.recompute()
